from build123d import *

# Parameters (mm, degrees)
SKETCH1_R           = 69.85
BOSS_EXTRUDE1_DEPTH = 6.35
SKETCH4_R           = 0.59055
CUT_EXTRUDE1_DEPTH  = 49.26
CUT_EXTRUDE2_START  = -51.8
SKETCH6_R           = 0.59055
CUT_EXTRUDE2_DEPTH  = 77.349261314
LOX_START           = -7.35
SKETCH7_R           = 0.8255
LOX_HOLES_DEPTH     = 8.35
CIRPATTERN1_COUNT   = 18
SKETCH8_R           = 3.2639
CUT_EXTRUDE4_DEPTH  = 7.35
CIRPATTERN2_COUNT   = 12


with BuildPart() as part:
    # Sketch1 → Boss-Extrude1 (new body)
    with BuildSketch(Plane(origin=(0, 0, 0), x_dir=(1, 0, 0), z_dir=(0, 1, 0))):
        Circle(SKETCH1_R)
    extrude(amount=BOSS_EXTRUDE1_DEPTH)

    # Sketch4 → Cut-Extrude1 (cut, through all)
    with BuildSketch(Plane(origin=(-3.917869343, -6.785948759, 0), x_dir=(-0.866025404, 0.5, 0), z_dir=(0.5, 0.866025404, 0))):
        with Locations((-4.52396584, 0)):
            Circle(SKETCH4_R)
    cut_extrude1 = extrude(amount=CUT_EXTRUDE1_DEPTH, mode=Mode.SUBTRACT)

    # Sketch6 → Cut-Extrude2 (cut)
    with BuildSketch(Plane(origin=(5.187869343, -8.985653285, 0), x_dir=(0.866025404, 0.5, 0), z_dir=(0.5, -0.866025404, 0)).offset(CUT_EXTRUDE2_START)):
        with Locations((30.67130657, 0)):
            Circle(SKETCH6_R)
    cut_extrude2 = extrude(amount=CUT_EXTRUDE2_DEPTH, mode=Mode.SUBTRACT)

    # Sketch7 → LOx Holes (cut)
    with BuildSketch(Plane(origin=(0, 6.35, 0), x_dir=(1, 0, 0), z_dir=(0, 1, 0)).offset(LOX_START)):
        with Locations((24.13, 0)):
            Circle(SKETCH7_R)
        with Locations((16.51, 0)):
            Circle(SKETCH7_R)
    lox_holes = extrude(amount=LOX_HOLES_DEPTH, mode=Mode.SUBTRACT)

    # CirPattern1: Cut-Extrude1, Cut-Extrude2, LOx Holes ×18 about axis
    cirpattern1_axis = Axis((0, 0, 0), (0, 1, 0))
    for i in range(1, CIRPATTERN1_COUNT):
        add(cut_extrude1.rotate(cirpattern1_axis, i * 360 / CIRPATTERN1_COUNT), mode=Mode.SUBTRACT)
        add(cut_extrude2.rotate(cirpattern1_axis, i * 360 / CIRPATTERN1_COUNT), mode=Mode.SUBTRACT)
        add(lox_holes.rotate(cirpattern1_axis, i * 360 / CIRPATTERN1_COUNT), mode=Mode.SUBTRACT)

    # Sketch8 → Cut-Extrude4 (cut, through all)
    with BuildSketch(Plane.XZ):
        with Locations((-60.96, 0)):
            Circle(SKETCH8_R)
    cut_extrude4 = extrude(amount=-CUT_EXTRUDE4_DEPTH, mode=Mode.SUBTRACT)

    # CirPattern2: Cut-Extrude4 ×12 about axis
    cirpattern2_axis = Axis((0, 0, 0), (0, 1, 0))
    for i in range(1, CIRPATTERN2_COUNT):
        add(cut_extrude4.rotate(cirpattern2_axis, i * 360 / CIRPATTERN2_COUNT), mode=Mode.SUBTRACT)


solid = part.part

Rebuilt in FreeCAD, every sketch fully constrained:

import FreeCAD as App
import Part
import Sketcher
Q = App.Units.Quantity

doc = App.newDocument("Part")
body = doc.addObject("PartDesign::Body", "Body")

sketch1 = doc.addObject("Sketcher::SketchObject", "Sketch")
body.addObject(sketch1)
sketch1.AttachmentSupport = (doc.XZ_Plane, [""])
sketch1.MapMode = "FlatFace"
sketch1.addGeometry(Part.Circle(App.Vector(0, 0, 0), App.Vector(0, 0, 1), 70), False)
sketch1.addConstraint([
    Sketcher.Constraint("Coincident", 0, 3, -1, 1),
    Sketcher.Constraint("Diameter", 0, Q("5.5 in")),
])
pad1 = doc.addObject("PartDesign::Pad", "Pad")
body.addObject(pad1)
pad1.Profile = sketch1
pad1.Length = Q("0.25 in")
pad1.Reversed = True

sketch2 = doc.addObject("Sketcher::SketchObject", "Sketch001")
body.addObject(sketch2)
sketch2.Placement = App.Placement(App.Vector(-3.917869, -6.785949, 0), App.Rotation(App.Vector(-0.866025404, 0.5, 0), App.Vector(0, 0, 1), App.Vector(0.5, 0.866025404, 0), "ZXY"))
sketch2.addGeometry(Part.Circle(App.Vector(-4.5, 0, 0), App.Vector(0, 0, 1), 0.6), False)
sketch2.addConstraint([
    Sketcher.Constraint("PointOnObject", 0, 3, -1),
    Sketcher.Constraint("Diameter", 0, Q("0.0465 in")),
    Sketcher.Constraint("DistanceX", 0, 3, -1, 1, 4.523966),
])
pocket1 = doc.addObject("PartDesign::Pocket", "Pocket")
body.addObject(pocket1)
pocket1.Profile = sketch2
pocket1.Type = "ThroughAll"
pocket1.Reversed = True

sketch3 = doc.addObject("Sketcher::SketchObject", "Sketch002")
body.addObject(sketch3)
sketch3.Placement = App.Placement(App.Vector(-20.712131, 35.874463, 0), App.Rotation(App.Vector(0.866025404, 0.5, 0), App.Vector(0, 0, 1), App.Vector(0.5, -0.866025404, 0), "ZXY"))
sketch3.addGeometry(Part.Circle(App.Vector(30.7, 0, 0), App.Vector(0, 0, 1), 0.6), False)
sketch3.addConstraint([
    Sketcher.Constraint("PointOnObject", 0, 3, -1),
    Sketcher.Constraint("Diameter", 0, Q("0.0465 in")),
    Sketcher.Constraint("DistanceX", -1, 1, 0, 3, 30.671307),
])
pocket2 = doc.addObject("PartDesign::Pocket", "Pocket001")
body.addObject(pocket2)
pocket2.Profile = sketch3
pocket2.Length = 77.349261
pocket2.Reversed = True

sketch4 = doc.addObject("Sketcher::SketchObject", "Sketch003")
body.addObject(sketch4)
sketch4.AttachmentSupport = (doc.XZ_Plane, [""])
sketch4.MapMode = "FlatFace"
sketch4.AttachmentOffset = App.Placement(App.Vector(0, 0, 1), App.Rotation())
sketch4.addGeometry([
    Part.Circle(App.Vector(24.1, 0, 0), App.Vector(0, 0, 1), 0.8),
    Part.Circle(App.Vector(16.5, 0, 0), App.Vector(0, 0, 1), 0.8),
], False)
sketch4.addConstraint([
    Sketcher.Constraint("Equal", 0, 1),
    Sketcher.Constraint("PointOnObject", 0, 3, -1),
    Sketcher.Constraint("PointOnObject", 1, 3, -1),
    Sketcher.Constraint("Diameter", 0, Q("0.065 in")),
    Sketcher.Constraint("DistanceX", 1, 3, 0, 3, Q("0.3 in")),
    Sketcher.Constraint("DistanceX", -1, 1, 0, 3, Q("0.95 in")),
])
pocket3 = doc.addObject("PartDesign::Pocket", "Pocket002")
body.addObject(pocket3)
pocket3.Profile = sketch4
pocket3.Length = 8.35
doc.recompute()

polarpattern = doc.addObject("PartDesign::PolarPattern", "PolarPattern")
body.addObject(polarpattern)
polarpattern.Originals = [pocket1, pocket2, pocket3]
polarpattern.Axis = (doc.Y_Axis, [""])
polarpattern.Angle = 360
polarpattern.Occurrences = 18
body.Tip = polarpattern

sketch5 = doc.addObject("Sketcher::SketchObject", "Sketch004")
body.addObject(sketch5)
sketch5.AttachmentSupport = (doc.XZ_Plane, [""])
sketch5.MapMode = "FlatFace"
sketch5.addGeometry(Part.Circle(App.Vector(-61, 0, 0), App.Vector(0, 0, 1), 3.3), False)
sketch5.addConstraint([
    Sketcher.Constraint("PointOnObject", 0, 3, -1),
    Sketcher.Constraint("Diameter", 0, Q("0.257 in")),
    Sketcher.Constraint("DistanceX", 0, 3, -1, 1, Q("2.4 in")),
])
pocket4 = doc.addObject("PartDesign::Pocket", "Pocket003")
body.addObject(pocket4)
pocket4.Profile = sketch5
pocket4.Type = "ThroughAll"
doc.recompute()

polarpattern2 = doc.addObject("PartDesign::PolarPattern", "PolarPattern001")
body.addObject(polarpattern2)
polarpattern2.Originals = [pocket4]
polarpattern2.Axis = (doc.Y_Axis, [""])
polarpattern2.Angle = 360
polarpattern2.Occurrences = 12
body.Tip = polarpattern2

doc.recompute()
